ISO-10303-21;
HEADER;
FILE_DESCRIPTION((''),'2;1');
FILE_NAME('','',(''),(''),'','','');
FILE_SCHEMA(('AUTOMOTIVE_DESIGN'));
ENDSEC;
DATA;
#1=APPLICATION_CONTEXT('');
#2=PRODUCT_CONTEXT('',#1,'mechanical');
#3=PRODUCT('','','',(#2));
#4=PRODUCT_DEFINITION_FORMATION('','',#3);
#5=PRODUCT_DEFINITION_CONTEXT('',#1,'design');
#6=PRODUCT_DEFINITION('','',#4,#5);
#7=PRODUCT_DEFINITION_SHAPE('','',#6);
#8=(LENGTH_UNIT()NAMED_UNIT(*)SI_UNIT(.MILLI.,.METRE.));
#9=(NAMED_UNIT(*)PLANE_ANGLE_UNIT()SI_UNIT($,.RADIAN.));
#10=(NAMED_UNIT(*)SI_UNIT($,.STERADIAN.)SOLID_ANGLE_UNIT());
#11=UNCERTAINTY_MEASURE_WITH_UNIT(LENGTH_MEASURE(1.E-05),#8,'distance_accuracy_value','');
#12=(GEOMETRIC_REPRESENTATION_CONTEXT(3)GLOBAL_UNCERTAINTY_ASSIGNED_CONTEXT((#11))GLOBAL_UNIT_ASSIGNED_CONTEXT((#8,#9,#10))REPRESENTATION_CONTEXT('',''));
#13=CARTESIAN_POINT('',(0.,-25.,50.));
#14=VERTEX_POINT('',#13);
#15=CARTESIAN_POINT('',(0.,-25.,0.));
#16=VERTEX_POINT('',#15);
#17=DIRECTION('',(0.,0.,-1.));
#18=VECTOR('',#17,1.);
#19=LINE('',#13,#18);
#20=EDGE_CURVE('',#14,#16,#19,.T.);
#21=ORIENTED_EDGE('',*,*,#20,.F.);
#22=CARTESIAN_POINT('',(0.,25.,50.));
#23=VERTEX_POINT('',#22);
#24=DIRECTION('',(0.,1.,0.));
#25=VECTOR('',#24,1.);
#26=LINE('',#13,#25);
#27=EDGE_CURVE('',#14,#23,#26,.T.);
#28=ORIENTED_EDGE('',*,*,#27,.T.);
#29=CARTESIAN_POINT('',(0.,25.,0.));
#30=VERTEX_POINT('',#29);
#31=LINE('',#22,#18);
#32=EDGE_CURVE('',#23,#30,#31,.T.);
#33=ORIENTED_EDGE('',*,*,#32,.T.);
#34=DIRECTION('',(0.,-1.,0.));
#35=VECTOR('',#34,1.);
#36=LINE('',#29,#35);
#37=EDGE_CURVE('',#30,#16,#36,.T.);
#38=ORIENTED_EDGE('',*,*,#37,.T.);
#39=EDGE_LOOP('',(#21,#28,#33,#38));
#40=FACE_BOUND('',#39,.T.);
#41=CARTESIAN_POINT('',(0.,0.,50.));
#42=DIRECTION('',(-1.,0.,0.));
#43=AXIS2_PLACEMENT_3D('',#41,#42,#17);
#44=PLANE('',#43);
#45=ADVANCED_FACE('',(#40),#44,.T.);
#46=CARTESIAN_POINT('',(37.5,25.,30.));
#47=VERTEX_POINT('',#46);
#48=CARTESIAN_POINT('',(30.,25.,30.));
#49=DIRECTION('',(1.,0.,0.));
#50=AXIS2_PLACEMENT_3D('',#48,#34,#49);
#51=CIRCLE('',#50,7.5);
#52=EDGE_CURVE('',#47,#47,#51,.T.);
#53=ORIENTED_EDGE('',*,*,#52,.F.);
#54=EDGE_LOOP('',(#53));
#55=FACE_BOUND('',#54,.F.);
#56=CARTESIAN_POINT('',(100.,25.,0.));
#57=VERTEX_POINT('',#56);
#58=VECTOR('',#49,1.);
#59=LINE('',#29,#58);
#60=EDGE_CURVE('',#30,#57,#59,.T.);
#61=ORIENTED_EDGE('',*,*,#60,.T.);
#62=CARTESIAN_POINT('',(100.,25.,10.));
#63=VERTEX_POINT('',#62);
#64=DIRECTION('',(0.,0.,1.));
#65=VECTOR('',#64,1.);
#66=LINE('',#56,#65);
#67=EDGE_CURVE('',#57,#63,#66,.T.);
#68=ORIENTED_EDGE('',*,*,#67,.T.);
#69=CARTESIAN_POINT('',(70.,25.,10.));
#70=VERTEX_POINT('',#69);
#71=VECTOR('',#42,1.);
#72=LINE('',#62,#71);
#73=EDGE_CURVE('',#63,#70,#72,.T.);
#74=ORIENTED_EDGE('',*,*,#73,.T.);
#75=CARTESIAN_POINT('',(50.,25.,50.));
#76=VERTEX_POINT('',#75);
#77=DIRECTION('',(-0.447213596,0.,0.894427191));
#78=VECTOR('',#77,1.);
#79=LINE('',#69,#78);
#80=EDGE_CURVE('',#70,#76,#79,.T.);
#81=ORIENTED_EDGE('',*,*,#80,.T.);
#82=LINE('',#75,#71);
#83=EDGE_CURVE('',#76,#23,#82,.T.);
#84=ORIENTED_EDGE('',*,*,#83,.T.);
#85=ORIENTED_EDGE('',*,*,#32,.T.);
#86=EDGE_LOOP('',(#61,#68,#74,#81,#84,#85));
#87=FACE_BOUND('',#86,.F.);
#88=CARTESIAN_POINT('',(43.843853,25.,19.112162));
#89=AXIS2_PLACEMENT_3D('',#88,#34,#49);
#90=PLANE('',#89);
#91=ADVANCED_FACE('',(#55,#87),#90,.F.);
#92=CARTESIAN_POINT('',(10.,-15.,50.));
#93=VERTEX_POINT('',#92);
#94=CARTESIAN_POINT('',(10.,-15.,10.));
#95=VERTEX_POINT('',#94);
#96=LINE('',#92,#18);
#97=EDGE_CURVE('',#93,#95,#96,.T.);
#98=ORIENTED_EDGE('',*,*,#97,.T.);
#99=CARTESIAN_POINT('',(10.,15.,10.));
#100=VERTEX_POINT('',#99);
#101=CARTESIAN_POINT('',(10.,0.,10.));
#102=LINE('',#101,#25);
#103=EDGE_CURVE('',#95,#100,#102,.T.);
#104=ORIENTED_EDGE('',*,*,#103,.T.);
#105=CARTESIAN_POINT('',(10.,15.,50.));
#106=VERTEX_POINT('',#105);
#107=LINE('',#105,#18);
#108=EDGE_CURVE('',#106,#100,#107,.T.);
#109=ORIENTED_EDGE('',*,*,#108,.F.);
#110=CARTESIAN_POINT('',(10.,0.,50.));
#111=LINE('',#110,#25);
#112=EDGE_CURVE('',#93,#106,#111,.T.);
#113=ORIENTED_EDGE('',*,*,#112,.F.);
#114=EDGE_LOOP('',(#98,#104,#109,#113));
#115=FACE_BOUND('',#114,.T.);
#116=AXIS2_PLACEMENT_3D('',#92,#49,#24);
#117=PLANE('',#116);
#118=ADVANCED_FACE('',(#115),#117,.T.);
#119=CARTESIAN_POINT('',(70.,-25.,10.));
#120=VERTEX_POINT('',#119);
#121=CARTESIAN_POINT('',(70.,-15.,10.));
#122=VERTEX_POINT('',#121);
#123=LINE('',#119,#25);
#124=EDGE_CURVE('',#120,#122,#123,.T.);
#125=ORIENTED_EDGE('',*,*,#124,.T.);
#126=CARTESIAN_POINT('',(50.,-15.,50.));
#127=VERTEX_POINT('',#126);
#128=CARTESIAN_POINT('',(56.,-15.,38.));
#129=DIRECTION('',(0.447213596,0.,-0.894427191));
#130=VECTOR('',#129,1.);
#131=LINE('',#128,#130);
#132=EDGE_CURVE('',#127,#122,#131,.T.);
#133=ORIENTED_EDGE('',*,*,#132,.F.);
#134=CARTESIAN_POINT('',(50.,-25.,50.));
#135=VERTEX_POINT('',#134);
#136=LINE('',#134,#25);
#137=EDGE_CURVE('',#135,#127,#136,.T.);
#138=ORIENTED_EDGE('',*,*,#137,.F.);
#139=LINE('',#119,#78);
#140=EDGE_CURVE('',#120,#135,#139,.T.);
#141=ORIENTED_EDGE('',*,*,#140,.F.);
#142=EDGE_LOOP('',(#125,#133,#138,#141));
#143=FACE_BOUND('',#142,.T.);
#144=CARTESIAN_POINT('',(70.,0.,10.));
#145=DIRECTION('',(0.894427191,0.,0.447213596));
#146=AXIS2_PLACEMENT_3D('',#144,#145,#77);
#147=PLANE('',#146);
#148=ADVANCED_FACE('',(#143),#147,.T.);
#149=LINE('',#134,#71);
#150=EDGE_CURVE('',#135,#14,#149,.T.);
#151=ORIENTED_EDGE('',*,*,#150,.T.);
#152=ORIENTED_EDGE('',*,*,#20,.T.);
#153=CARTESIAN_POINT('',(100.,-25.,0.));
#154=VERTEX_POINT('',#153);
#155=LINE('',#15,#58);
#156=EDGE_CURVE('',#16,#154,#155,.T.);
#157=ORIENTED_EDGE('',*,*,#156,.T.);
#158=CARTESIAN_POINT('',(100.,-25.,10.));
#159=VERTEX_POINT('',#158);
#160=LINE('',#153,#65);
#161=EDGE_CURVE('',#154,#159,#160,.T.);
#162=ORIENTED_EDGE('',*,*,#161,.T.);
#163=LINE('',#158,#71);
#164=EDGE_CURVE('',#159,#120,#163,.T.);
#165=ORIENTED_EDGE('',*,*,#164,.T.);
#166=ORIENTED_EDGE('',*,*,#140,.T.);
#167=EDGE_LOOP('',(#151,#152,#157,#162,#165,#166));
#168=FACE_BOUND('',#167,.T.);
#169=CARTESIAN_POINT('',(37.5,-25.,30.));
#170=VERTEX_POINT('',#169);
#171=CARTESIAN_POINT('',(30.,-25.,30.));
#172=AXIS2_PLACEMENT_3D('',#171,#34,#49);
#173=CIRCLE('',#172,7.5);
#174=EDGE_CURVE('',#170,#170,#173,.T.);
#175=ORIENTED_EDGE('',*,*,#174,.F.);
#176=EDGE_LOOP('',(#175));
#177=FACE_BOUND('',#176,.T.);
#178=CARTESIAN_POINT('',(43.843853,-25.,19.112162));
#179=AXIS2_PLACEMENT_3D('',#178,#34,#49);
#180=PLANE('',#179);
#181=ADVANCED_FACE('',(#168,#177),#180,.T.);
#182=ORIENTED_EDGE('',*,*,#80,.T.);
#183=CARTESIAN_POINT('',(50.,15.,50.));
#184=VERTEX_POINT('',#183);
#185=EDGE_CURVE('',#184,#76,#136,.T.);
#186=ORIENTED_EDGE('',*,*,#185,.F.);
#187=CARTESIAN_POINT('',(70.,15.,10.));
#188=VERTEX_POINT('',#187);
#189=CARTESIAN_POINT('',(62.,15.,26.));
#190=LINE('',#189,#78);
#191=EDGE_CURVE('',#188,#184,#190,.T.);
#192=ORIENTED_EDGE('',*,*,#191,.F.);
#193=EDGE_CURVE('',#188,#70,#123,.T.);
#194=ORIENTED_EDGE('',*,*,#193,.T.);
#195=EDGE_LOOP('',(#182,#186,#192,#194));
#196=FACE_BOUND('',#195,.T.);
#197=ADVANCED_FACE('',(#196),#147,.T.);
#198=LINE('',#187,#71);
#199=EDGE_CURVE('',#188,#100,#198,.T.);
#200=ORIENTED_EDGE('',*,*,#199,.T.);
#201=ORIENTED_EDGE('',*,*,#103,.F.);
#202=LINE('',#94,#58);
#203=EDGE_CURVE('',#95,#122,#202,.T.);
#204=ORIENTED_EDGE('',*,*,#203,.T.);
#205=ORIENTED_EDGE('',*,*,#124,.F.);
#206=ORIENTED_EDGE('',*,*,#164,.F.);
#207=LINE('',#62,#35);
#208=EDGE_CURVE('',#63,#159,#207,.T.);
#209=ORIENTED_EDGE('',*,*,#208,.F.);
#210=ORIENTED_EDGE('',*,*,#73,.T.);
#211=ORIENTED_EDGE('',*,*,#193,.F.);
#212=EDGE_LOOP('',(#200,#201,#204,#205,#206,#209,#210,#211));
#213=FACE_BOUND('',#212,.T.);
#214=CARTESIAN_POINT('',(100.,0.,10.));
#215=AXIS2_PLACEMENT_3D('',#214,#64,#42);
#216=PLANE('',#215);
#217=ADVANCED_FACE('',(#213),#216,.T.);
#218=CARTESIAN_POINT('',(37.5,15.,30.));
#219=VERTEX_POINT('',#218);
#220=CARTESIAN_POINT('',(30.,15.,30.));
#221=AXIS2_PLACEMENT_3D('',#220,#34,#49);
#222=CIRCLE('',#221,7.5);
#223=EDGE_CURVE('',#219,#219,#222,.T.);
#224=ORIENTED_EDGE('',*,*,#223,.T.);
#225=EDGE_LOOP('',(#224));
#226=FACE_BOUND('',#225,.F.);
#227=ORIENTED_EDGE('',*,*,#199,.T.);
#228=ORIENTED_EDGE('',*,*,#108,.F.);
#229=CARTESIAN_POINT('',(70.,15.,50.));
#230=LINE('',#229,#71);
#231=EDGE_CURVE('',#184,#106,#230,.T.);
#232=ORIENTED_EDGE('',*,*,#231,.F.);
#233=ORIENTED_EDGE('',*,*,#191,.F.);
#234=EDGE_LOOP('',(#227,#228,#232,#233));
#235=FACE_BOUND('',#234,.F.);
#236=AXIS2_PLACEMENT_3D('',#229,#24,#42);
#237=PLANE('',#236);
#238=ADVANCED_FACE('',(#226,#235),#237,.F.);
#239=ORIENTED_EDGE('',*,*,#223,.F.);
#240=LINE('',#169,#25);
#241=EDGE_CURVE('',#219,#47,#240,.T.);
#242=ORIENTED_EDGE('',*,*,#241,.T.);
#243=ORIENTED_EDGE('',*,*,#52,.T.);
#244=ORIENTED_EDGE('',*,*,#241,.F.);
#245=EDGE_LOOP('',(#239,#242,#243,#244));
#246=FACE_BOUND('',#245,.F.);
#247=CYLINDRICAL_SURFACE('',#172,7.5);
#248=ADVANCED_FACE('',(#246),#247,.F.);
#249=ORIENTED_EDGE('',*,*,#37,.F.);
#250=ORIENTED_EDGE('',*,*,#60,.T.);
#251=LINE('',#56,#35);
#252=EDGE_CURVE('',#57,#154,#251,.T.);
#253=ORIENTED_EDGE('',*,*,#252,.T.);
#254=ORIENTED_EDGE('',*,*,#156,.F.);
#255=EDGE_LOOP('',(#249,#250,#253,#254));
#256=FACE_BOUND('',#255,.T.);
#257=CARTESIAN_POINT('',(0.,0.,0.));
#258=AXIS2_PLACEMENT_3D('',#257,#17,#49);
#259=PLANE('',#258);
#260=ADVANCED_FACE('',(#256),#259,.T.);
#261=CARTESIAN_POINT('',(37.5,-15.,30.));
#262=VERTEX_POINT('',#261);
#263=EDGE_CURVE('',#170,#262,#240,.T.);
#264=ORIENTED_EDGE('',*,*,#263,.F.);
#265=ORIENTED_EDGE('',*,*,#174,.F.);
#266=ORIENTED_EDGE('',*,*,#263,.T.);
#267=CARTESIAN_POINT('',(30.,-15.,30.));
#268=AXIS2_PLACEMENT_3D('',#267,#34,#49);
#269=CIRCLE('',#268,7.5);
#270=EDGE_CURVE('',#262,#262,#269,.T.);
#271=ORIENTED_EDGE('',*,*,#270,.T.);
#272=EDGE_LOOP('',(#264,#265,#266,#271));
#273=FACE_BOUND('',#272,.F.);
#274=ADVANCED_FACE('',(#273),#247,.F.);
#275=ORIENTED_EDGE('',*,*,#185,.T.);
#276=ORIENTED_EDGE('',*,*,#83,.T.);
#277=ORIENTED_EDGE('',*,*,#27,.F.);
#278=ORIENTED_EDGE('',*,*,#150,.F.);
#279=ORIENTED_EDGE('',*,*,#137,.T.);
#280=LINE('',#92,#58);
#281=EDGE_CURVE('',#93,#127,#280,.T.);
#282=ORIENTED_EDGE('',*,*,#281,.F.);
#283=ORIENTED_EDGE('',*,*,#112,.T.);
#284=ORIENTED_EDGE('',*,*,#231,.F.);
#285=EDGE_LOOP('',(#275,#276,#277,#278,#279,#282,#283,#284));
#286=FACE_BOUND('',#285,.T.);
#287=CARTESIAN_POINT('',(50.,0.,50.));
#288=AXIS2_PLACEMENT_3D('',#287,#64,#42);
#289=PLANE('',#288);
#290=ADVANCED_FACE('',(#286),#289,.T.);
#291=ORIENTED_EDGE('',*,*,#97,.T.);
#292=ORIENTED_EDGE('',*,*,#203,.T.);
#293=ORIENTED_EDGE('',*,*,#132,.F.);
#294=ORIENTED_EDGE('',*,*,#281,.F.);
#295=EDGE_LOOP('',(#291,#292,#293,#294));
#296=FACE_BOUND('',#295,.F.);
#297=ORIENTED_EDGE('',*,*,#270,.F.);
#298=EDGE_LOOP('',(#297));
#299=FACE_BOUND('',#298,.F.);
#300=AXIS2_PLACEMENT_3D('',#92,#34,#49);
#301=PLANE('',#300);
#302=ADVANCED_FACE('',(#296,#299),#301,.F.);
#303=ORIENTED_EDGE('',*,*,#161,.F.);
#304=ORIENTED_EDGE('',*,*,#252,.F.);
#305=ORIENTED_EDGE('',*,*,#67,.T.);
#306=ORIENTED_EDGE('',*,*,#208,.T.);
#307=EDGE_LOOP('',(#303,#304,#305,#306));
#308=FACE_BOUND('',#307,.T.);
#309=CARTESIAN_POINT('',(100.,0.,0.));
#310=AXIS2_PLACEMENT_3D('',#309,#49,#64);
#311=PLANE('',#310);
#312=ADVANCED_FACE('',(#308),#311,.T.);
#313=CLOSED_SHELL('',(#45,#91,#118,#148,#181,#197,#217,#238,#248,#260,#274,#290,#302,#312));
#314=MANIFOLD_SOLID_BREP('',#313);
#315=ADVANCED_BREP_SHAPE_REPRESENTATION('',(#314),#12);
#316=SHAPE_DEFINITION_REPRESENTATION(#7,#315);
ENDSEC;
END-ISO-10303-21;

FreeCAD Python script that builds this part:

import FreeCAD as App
import Part
import Sketcher
Q = App.Units.Quantity

doc = App.newDocument("Part")
params = doc.addObject("Spreadsheet::Sheet", "Params")
for row, (alias, value) in enumerate([
    ("sketch1_width", "100 mm"),
    ("sketch1_width2", "30 mm"),
    ("sketch1_width3", "50 mm"),
    ("sketch1_height", "10 mm"),
    ("pad1_length", "50 mm"),
    ("sketch2_width", "60 mm"),
    ("sketch2_height", "30 mm"),
    ("pocket1_length", "40 mm"),
    ("sketch3_diameter", "15 mm"),
], start=1):
    params.set(f"A{row}", alias)
    params.set(f"B{row}", "=" + value)
    params.setAlias(f"B{row}", alias)

body = doc.addObject("PartDesign::Body", "Body")

# Sketch on XZ plane
sketch1 = doc.addObject("Sketcher::SketchObject", "Sketch")
body.addObject(sketch1)
sketch1.AttachmentSupport = (doc.XZ_Plane, [""])
sketch1.MapMode = "FlatFace"
sketch1.addGeometry(Part.LineSegment(App.Vector(0, 50, 0), App.Vector(0, 0, 0)), False)
sketch1.addGeometry(Part.LineSegment(App.Vector(0, 0, 0), App.Vector(100, 0, 0)), False)
sketch1.addGeometry(Part.LineSegment(App.Vector(100, 0, 0), App.Vector(100, 10, 0)), False)
sketch1.addGeometry(Part.LineSegment(App.Vector(100, 10, 0), App.Vector(70, 10, 0)), False)
sketch1.addGeometry(Part.LineSegment(App.Vector(70, 10, 0), App.Vector(50, 50, 0)), False)
sketch1.addGeometry(Part.LineSegment(App.Vector(50, 50, 0), App.Vector(0, 50, 0)), False)
sketch1.addConstraint(Sketcher.Constraint("Coincident", 0, 2, 1, 1))
sketch1.addConstraint(Sketcher.Constraint("Coincident", 1, 2, 2, 1))
sketch1.addConstraint(Sketcher.Constraint("Coincident", 2, 2, 3, 1))
sketch1.addConstraint(Sketcher.Constraint("Coincident", 3, 2, 4, 1))
sketch1.addConstraint(Sketcher.Constraint("Coincident", 4, 2, 5, 1))
sketch1.addConstraint(Sketcher.Constraint("Coincident", 5, 2, 0, 1))
sketch1.addConstraint(Sketcher.Constraint("Vertical", 0))
sketch1.addConstraint(Sketcher.Constraint("Horizontal", 1))
sketch1.addConstraint(Sketcher.Constraint("Vertical", 2))
sketch1.addConstraint(Sketcher.Constraint("Horizontal", 3))
sketch1.addConstraint(Sketcher.Constraint("Horizontal", 5))
sketch1.addConstraint(Sketcher.Constraint("Coincident", 0, 2, -1, 1))
sketch1.addConstraint(Sketcher.Constraint("Equal", 5, 0))
sketch1.addConstraint(Sketcher.Constraint("DistanceX", 1, 1, 1, 2, Q("100 mm")))
sketch1.addConstraint(Sketcher.Constraint("DistanceX", 3, 2, 3, 1, Q("30 mm")))
sketch1.addConstraint(Sketcher.Constraint("DistanceX", 5, 2, 5, 1, Q("50 mm")))
sketch1.addConstraint(Sketcher.Constraint("DistanceY", 2, 1, 2, 2, Q("10 mm")))
sketch1.setExpression("Constraints[13]", "Params.sketch1_width")
sketch1.setExpression("Constraints[14]", "Params.sketch1_width2")
sketch1.setExpression("Constraints[15]", "Params.sketch1_width3")
sketch1.setExpression("Constraints[16]", "Params.sketch1_height")
pad1 = doc.addObject("PartDesign::Pad", "Pad")
body.addObject(pad1)
pad1.Profile = sketch1
pad1.setExpression("Length", "Params.pad1_length")
pad1.Midplane = True

# Sketch on XY plane
sketch2 = doc.addObject("Sketcher::SketchObject", "Sketch001")
body.addObject(sketch2)
sketch2.AttachmentSupport = (doc.XY_Plane, [""])
sketch2.MapMode = "FlatFace"
sketch2.AttachmentOffset = App.Placement(App.Vector(0, 0, 50), App.Rotation())
sketch2.addGeometry(Part.LineSegment(App.Vector(70, -15, 0), App.Vector(70, 15, 0)), False)
sketch2.addGeometry(Part.LineSegment(App.Vector(70, 15, 0), App.Vector(10, 15, 0)), False)
sketch2.addGeometry(Part.LineSegment(App.Vector(10, 15, 0), App.Vector(10, -15, 0)), False)
sketch2.addGeometry(Part.LineSegment(App.Vector(10, -15, 0), App.Vector(70, -15, 0)), False)
sketch2.addConstraint(Sketcher.Constraint("Coincident", 0, 2, 1, 1))
sketch2.addConstraint(Sketcher.Constraint("Coincident", 1, 2, 2, 1))
sketch2.addConstraint(Sketcher.Constraint("Coincident", 2, 2, 3, 1))
sketch2.addConstraint(Sketcher.Constraint("Coincident", 3, 2, 0, 1))
sketch2.addConstraint(Sketcher.Constraint("Vertical", 0))
sketch2.addConstraint(Sketcher.Constraint("Horizontal", 1))
sketch2.addConstraint(Sketcher.Constraint("Vertical", 2))
sketch2.addConstraint(Sketcher.Constraint("Horizontal", 3))
sketch2.addConstraint(Sketcher.Constraint("DistanceX", 1, 2, 1, 1, Q("60 mm")))
sketch2.addConstraint(Sketcher.Constraint("DistanceY", 0, 1, 0, 2, Q("30 mm")))
sketch2.addConstraint(Sketcher.Constraint("DistanceX", -1, 1, 0, 2, Q("70 mm")))
sketch2.addConstraint(Sketcher.Constraint("DistanceY", -1, 1, 0, 2, Q("15 mm")))
sketch2.setExpression("Constraints[8]", "Params.sketch2_width")
sketch2.setExpression("Constraints[9]", "Params.sketch2_height")
pocket1 = doc.addObject("PartDesign::Pocket", "Pocket")
body.addObject(pocket1)
pocket1.Profile = sketch2
pocket1.setExpression("Length", "Params.pocket1_length")

# Sketch on XZ plane
sketch3 = doc.addObject("Sketcher::SketchObject", "Sketch002")
body.addObject(sketch3)
sketch3.AttachmentSupport = (doc.XZ_Plane, [""])
sketch3.MapMode = "FlatFace"
sketch3.AttachmentOffset = App.Placement(App.Vector(0, 0, 25), App.Rotation())
sketch3.addGeometry(Part.Circle(App.Vector(30, 30, 0), App.Vector(0, 0, 1), 8), False)
sketch3.addConstraint(Sketcher.Constraint("Diameter", 0, Q("15 mm")))
sketch3.addConstraint(Sketcher.Constraint("DistanceX", -1, 1, 0, 3, Q("30 mm")))
sketch3.addConstraint(Sketcher.Constraint("DistanceY", -1, 1, 0, 3, Q("30 mm")))
sketch3.setExpression("Constraints[0]", "Params.sketch3_diameter")
pocket2 = doc.addObject("PartDesign::Pocket", "Pocket001")
body.addObject(pocket2)
pocket2.Profile = sketch3
pocket2.Type = "ThroughAll"

doc.recompute()
